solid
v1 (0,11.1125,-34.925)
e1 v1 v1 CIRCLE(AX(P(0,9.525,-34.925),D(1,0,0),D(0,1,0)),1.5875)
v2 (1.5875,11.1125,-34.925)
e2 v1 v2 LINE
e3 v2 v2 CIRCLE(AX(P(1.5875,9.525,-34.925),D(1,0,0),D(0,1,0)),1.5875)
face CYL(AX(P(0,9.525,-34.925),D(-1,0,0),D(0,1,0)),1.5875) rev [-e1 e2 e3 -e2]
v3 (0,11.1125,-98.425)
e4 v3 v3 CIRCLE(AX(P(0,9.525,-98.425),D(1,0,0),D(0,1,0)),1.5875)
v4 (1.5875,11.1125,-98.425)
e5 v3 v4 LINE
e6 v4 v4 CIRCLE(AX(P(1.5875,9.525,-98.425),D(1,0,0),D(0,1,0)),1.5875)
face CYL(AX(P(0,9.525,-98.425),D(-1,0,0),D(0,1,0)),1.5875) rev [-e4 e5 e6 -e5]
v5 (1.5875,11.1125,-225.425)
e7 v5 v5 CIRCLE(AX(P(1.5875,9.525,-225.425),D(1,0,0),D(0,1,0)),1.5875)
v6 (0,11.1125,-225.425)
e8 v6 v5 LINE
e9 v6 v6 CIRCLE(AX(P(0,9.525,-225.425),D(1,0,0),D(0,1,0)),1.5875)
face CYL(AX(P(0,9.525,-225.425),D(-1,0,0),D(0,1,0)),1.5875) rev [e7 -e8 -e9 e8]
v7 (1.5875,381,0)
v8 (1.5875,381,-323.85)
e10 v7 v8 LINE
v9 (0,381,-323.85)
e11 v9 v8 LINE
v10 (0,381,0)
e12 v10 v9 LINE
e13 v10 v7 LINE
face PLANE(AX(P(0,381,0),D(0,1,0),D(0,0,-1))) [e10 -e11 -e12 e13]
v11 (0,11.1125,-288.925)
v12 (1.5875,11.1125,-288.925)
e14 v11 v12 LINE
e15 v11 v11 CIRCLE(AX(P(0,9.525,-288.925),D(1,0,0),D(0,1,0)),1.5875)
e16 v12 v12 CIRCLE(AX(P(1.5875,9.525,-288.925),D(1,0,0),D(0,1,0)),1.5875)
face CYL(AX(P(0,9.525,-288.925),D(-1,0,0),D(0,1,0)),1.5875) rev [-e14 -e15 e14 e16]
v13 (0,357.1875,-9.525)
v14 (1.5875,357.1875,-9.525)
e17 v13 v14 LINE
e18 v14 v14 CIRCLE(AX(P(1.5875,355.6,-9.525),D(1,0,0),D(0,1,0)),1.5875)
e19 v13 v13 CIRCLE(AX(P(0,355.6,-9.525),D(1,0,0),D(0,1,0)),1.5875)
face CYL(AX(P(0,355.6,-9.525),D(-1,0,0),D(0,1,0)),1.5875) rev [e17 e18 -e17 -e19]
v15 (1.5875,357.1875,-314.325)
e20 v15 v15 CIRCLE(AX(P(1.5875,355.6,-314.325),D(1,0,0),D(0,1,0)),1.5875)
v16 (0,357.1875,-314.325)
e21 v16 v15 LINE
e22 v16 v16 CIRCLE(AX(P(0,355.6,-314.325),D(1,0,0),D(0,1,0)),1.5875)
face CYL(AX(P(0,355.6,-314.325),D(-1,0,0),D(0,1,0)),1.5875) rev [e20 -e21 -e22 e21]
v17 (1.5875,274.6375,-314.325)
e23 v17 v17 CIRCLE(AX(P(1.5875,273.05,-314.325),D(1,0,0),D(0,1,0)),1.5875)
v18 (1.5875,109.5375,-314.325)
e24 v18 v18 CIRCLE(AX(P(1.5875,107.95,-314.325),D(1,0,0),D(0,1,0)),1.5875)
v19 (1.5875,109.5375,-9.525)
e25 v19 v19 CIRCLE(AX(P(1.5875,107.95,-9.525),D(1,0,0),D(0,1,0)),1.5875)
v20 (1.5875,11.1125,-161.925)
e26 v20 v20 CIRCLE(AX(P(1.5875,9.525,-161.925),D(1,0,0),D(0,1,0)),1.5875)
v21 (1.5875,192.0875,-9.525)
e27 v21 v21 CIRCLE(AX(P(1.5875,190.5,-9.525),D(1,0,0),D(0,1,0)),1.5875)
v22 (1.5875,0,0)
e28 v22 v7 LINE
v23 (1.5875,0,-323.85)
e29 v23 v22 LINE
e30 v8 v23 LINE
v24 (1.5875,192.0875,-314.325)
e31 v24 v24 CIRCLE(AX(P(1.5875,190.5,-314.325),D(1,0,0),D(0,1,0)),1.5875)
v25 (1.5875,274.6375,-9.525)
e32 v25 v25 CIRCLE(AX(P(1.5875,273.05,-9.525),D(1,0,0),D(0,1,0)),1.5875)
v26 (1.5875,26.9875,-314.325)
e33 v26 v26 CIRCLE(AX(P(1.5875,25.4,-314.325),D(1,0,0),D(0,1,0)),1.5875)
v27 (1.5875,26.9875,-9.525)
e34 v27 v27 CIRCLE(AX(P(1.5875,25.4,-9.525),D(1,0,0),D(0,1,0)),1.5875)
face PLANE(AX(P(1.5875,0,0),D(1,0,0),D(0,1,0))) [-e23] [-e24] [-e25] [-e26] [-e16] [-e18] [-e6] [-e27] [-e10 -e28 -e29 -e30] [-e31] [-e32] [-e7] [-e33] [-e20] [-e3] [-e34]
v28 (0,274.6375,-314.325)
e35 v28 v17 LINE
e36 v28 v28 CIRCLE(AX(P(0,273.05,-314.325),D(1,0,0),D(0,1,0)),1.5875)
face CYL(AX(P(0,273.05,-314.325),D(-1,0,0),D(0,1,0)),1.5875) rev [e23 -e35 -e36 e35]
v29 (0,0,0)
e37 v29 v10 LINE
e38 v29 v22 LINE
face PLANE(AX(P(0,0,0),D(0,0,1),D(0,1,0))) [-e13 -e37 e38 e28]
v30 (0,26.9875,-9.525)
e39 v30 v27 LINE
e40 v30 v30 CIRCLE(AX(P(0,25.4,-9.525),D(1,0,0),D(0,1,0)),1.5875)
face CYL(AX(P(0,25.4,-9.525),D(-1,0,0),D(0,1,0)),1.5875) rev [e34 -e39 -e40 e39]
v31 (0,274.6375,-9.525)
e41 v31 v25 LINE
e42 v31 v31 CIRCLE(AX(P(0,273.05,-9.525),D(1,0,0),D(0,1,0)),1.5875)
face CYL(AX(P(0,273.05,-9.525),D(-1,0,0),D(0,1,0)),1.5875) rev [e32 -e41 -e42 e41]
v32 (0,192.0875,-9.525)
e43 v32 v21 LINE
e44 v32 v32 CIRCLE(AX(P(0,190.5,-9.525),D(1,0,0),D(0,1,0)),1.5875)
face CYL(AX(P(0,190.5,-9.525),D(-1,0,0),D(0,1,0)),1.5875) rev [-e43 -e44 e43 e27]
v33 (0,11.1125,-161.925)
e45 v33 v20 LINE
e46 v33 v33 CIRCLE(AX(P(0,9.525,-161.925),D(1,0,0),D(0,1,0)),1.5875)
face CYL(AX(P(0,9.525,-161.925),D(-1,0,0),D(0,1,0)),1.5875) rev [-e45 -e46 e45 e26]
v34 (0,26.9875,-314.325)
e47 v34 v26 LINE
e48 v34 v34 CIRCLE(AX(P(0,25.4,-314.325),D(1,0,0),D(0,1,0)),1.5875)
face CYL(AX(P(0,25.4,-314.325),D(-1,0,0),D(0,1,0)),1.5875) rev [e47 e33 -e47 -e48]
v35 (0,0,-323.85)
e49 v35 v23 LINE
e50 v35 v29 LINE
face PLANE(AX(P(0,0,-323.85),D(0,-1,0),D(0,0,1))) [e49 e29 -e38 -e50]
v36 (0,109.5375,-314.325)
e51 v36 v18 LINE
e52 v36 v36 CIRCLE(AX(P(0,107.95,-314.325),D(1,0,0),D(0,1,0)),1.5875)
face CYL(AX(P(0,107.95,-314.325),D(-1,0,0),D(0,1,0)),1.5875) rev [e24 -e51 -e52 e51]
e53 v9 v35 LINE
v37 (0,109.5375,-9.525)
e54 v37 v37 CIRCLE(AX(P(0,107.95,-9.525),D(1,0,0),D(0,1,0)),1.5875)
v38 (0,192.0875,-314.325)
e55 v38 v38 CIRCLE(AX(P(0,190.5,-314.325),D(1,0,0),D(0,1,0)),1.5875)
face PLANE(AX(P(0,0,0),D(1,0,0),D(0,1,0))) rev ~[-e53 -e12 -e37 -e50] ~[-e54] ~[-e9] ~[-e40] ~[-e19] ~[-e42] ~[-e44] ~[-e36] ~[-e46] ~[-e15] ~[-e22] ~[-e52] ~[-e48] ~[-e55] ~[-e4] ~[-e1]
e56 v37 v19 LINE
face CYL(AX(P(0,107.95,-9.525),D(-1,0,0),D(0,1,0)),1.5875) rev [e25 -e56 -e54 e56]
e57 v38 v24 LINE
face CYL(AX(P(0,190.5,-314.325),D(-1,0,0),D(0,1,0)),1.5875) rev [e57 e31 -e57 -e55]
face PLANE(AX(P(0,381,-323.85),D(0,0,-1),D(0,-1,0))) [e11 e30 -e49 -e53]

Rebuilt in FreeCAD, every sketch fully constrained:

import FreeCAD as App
import Part
import Sketcher
Q = App.Units.Quantity

doc = App.newDocument("Part")
body = doc.addObject("PartDesign::Body", "Body")

# Sketch on YZ plane
sketch1 = doc.addObject("Sketcher::SketchObject", "Sketch")
body.addObject(sketch1)
sketch1.AttachmentSupport = (doc.YZ_Plane, [""])
sketch1.MapMode = "FlatFace"
sketch1.addGeometry([
    Part.LineSegment(App.Vector(381, 0, 0), App.Vector(0, 0, 0)),  # 0
    Part.LineSegment(App.Vector(0, 0, 0), App.Vector(0, -323.9, 0)),  # 1
    Part.LineSegment(App.Vector(0, -323.9, 0), App.Vector(381, -323.9, 0)),  # 2
    Part.LineSegment(App.Vector(381, -323.9, 0), App.Vector(381, 0, 0)),  # 3
    Part.Circle(App.Vector(25.4, -314.3, 0), App.Vector(0, 0, 1), 1.6),  # 4
    Part.Circle(App.Vector(9.5, -288.9, 0), App.Vector(0, 0, 1), 1.6),  # 5
    Part.Circle(App.Vector(108, -314.3, 0), App.Vector(0, 0, 1), 1.6),  # 6
    Part.Circle(App.Vector(9.5, -225.4, 0), App.Vector(0, 0, 1), 1.6),  # 7
    Part.Circle(App.Vector(190.5, -314.3, 0), App.Vector(0, 0, 1), 1.6),  # 8
    Part.Circle(App.Vector(273.1, -314.3, 0), App.Vector(0, 0, 1), 1.6),  # 9
    Part.Circle(App.Vector(355.6, -314.3, 0), App.Vector(0, 0, 1), 1.6),  # 10
    Part.Circle(App.Vector(9.5, -161.9, 0), App.Vector(0, 0, 1), 1.6),  # 11
    Part.Circle(App.Vector(9.5, -98.4, 0), App.Vector(0, 0, 1), 1.6),  # 12
    Part.Circle(App.Vector(9.5, -34.9, 0), App.Vector(0, 0, 1), 1.6),  # 13
    Part.Circle(App.Vector(25.4, -9.5, 0), App.Vector(0, 0, 1), 1.6),  # 14
    Part.Circle(App.Vector(108, -9.5, 0), App.Vector(0, 0, 1), 1.6),  # 15
    Part.Circle(App.Vector(190.5, -9.5, 0), App.Vector(0, 0, 1), 1.6),  # 16
    Part.Circle(App.Vector(273.1, -9.5, 0), App.Vector(0, 0, 1), 1.6),  # 17
    Part.Circle(App.Vector(355.6, -9.5, 0), App.Vector(0, 0, 1), 1.6),  # 18
], False)
sketch1.addConstraint([
    Sketcher.Constraint("Coincident", 0, 2, 1, 1),
    Sketcher.Constraint("Coincident", 1, 2, 2, 1),
    Sketcher.Constraint("Coincident", 2, 2, 3, 1),
    Sketcher.Constraint("Coincident", 3, 2, 0, 1),
    Sketcher.Constraint("Horizontal", 0),
    Sketcher.Constraint("Vertical", 1),
    Sketcher.Constraint("Horizontal", 2),
    Sketcher.Constraint("Vertical", 3),
    Sketcher.Constraint("Coincident", 0, 2, -1, 1),
    Sketcher.Constraint("Equal", 4, 5),
    Sketcher.Constraint("Equal", 5, 6),
    Sketcher.Constraint("Equal", 6, 7),
    Sketcher.Constraint("Equal", 7, 8),
    Sketcher.Constraint("Equal", 8, 9),
    Sketcher.Constraint("Equal", 9, 10),
    Sketcher.Constraint("Equal", 10, 11),
    Sketcher.Constraint("Equal", 11, 12),
    Sketcher.Constraint("Equal", 12, 13),
    Sketcher.Constraint("Equal", 13, 14),
    Sketcher.Constraint("Equal", 14, 15),
    Sketcher.Constraint("Equal", 15, 16),
    Sketcher.Constraint("Equal", 16, 17),
    Sketcher.Constraint("Equal", 17, 18),
    Sketcher.Constraint("Horizontal", 4, 3, 6, 3),
    Sketcher.Constraint("Horizontal", 6, 3, 8, 3),
    Sketcher.Constraint("Horizontal", 8, 3, 9, 3),
    Sketcher.Constraint("Horizontal", 9, 3, 10, 3),
    Sketcher.Constraint("Horizontal", 14, 3, 15, 3),
    Sketcher.Constraint("Horizontal", 15, 3, 16, 3),
    Sketcher.Constraint("Horizontal", 16, 3, 17, 3),
    Sketcher.Constraint("Horizontal", 17, 3, 18, 3),
    Sketcher.Constraint("Vertical", 5, 3, 7, 3),
    Sketcher.Constraint("Vertical", 7, 3, 11, 3),
    Sketcher.Constraint("Vertical", 11, 3, 12, 3),
    Sketcher.Constraint("Vertical", 12, 3, 13, 3),
    Sketcher.Constraint("Vertical", 4, 3, 14, 3),
    Sketcher.Constraint("Vertical", 6, 3, 15, 3),
    Sketcher.Constraint("Vertical", 8, 3, 16, 3),
    Sketcher.Constraint("Vertical", 9, 3, 17, 3),
    Sketcher.Constraint("Vertical", 10, 3, 18, 3),
    Sketcher.Constraint("DistanceX", 0, 2, 0, 1, Q("15 in")),
    Sketcher.Constraint("Diameter", 4, Q("0.125 in")),
    Sketcher.Constraint("DistanceX", -1, 1, 4, 3, Q("1 in")),
    Sketcher.Constraint("DistanceY", 4, 3, 5, 3, Q("1 in")),
    Sketcher.Constraint("DistanceY", 13, 3, 14, 3, Q("1 in")),
    Sketcher.Constraint("DistanceX", 10, 3, 2, 2, Q("1 in")),
    Sketcher.Constraint("DistanceY", 1, 2, 1, 1, Q("12.75 in")),
    Sketcher.Constraint("DistanceY", 5, 3, 7, 3, Q("2.5 in")),
    Sketcher.Constraint("DistanceY", 7, 3, 11, 3, Q("2.5 in")),
    Sketcher.Constraint("DistanceY", 11, 3, 12, 3, Q("2.5 in")),
    Sketcher.Constraint("DistanceY", 12, 3, 13, 3, Q("2.5 in")),
    Sketcher.Constraint("DistanceX", 4, 3, 6, 3, Q("3.25 in")),
    Sketcher.Constraint("DistanceX", 6, 3, 8, 3, Q("3.25 in")),
    Sketcher.Constraint("DistanceX", 8, 3, 9, 3, Q("3.25 in")),
    Sketcher.Constraint("DistanceX", -1, 1, 5, 3, Q("0.375 in")),
    Sketcher.Constraint("DistanceY", 14, 3, -1, 1, Q("0.375 in")),
])
pad1 = doc.addObject("PartDesign::Pad", "Pad")
body.addObject(pad1)
pad1.Profile = sketch1
pad1.Length = Q("0.0625 in")

doc.recompute()
